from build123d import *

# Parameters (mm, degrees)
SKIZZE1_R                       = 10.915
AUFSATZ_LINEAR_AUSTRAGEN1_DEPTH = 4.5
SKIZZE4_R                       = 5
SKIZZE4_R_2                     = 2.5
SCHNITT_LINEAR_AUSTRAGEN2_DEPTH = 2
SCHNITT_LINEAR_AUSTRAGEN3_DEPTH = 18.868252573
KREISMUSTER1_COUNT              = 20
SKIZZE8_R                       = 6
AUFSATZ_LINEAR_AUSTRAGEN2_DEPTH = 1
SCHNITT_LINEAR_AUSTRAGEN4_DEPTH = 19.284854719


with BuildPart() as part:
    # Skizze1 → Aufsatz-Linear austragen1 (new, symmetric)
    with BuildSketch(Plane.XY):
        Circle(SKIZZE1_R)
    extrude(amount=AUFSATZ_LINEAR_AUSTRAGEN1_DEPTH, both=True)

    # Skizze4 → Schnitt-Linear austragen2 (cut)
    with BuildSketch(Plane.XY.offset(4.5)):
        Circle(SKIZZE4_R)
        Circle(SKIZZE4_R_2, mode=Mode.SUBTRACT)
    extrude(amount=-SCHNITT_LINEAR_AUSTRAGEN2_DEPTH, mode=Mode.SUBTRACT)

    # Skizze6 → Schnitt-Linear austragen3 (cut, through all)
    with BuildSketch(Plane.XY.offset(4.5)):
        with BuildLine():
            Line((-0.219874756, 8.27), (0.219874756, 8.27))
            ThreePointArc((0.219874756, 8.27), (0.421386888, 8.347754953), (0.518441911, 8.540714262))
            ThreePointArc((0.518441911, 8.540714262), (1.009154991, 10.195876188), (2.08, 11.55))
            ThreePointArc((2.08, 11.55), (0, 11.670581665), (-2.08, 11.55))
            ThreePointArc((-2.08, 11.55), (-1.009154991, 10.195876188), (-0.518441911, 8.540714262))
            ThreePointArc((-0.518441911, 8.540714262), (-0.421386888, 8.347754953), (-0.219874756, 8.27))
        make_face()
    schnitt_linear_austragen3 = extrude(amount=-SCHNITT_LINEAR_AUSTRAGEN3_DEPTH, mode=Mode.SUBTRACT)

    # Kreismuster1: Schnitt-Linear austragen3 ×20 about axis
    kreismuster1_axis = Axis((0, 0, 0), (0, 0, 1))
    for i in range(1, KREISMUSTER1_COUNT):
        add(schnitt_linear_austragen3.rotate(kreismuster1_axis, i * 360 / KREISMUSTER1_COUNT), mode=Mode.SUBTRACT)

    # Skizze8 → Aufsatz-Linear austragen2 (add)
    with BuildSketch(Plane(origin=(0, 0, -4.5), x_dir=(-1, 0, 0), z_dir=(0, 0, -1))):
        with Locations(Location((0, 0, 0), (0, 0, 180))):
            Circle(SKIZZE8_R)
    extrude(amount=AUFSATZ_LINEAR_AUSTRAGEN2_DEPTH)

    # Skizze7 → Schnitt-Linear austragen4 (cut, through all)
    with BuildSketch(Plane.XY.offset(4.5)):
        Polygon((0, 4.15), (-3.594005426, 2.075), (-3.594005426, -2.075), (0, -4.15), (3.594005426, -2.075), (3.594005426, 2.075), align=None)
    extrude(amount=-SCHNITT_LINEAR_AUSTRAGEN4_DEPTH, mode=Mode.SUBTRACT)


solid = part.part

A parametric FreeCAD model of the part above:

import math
import FreeCAD as App
import Part
import Sketcher

V = App.Vector
Q = App.Units.Quantity

doc = App.newDocument("Part")
params = doc.addObject("Spreadsheet::Sheet", "Params")
for row, (alias, value) in enumerate([
    ("sketch1_diameter", "21.83 mm"),
    ("pad1_length", "9 mm"),
    ("sketch2_diameter", "10 mm"),
    ("sketch2_diameter2", "5 mm"),
    ("pocket1_length", "2 mm"),
    ("sketch3_radius", "18 mm"),
    ("sketch3_radius2", "0.3 mm"),
    ("sketch3_radius3", "4.56 mm"),
    ("sketch4_diameter", "12 mm"),
    ("pad2_length", "1 mm"),
    ("sketch5_height", "4.15 mm"),
], start=1):
    params.set(f"A{row}", alias)
    params.set(f"B{row}", "=" + value)
    params.setAlias(f"B{row}", alias)

body = doc.addObject("PartDesign::Body", "Body")

sketch1 = body.newObject("Sketcher::SketchObject", "Sketch")
sketch1.AttachmentSupport = (doc.getObject("XY_Plane"), [""])
sketch1.MapMode = "FlatFace"
sketch1.addGeometry(Part.Circle(V(0, 0, 0), V(0, 0, 1), 11), False)
sketch1.addConstraint([
    Sketcher.Constraint("Coincident", 0, 3, -1, 1),
    Sketcher.Constraint("Diameter", 0, Q("21.83 mm")),
])
sketch1.setExpression("Constraints[1]", "Params.sketch1_diameter")
pad1 = body.newObject("PartDesign::Pad", "Pad")
pad1.Profile = sketch1
pad1.setExpression("Length", "Params.pad1_length")
pad1.Midplane = True

sketch2 = body.newObject("Sketcher::SketchObject", "Sketch001")
sketch2.AttachmentSupport = (doc.getObject("XY_Plane"), [""])
sketch2.MapMode = "FlatFace"
sketch2.AttachmentOffset = App.Placement(V(0, 0, 4.5), App.Rotation())
sketch2.addGeometry([
    Part.Circle(V(0, 0, 0), V(0, 0, 1), 5),
    Part.Circle(V(0, 0, 0), V(0, 0, 1), 2.5),
], False)
sketch2.addConstraint([
    Sketcher.Constraint("Coincident", 0, 3, -1, 1),
    Sketcher.Constraint("Coincident", 1, 3, -1, 1),
    Sketcher.Constraint("Diameter", 0, Q("10 mm")),
    Sketcher.Constraint("Diameter", 1, Q("5 mm")),
])
sketch2.setExpression("Constraints[2]", "Params.sketch2_diameter")
sketch2.setExpression("Constraints[3]", "Params.sketch2_diameter2")
pocket1 = body.newObject("PartDesign::Pocket", "Pocket")
pocket1.Profile = sketch2
pocket1.setExpression("Length", "Params.pocket1_length")

sketch3 = body.newObject("Sketcher::SketchObject", "Sketch002")
sketch3.AttachmentSupport = (doc.getObject("XY_Plane"), [""])
sketch3.MapMode = "FlatFace"
sketch3.AttachmentOffset = App.Placement(V(0, 0, 4.5), App.Rotation())
sketch3.addGeometry([
    Part.LineSegment(V(-0.22, 8.27, 0), V(0.22, 8.27, 0)),
    Part.ArcOfCircle(Part.Circle(V(0.22, 8.57, 0), V(0, 0, 1), 0.3), math.radians(-90), math.radians(-6)),
    Part.ArcOfCircle(Part.Circle(V(5.06, 8.1, 0), V(0, 0, 1), 4.56), math.radians(131), math.radians(174)),
    Part.ArcOfCircle(Part.Circle(V(0, -6.33, 0), V(0, 0, 1), 18), math.radians(83.36), math.radians(96.64)),
    Part.ArcOfCircle(Part.Circle(V(-5.06, 8.1, 0), V(0, 0, 1), 4.56), math.radians(6), math.radians(49)),
    Part.ArcOfCircle(Part.Circle(V(-0.22, 8.57, 0), V(0, 0, 1), 0.3), math.radians(-174), math.radians(-90)),
], False)
sketch3.addConstraint([
    Sketcher.Constraint("Tangent", 0, 2, 1, 1),
    Sketcher.Constraint("Tangent", 1, 2, 2, 2),
    Sketcher.Constraint("Coincident", 2, 1, 3, 1),
    Sketcher.Constraint("Coincident", 3, 2, 4, 2),
    Sketcher.Constraint("Tangent", 4, 1, 5, 1),
    Sketcher.Constraint("Tangent", 5, 2, 0, 1),
    Sketcher.Constraint("Horizontal", 0),
    Sketcher.Constraint("Equal", 2, 4),
    Sketcher.Constraint("Equal", 1, 5),
    Sketcher.Constraint("Symmetric", 2, 3, 4, 3, -2),
    Sketcher.Constraint("PointOnObject", 3, 3, -2),
    Sketcher.Constraint("Radius", 3, Q("18 mm")),
    Sketcher.Constraint("Radius", 1, Q("0.3 mm")),
    Sketcher.Constraint("Radius", 2, Q("4.56 mm")),
    Sketcher.Constraint("DistanceY", -1, 1, 1, 3, Q("8.57 mm")),
    Sketcher.Constraint("DistanceX", -1, 1, 2, 1, Q("2.08 mm")),
    Sketcher.Constraint("DistanceY", -1, 1, 2, 1, Q("11.55 mm")),
    Sketcher.Constraint("DistanceX", 0, 1, 0, 2, Q("0.43975 mm")),
])
sketch3.setExpression("Constraints[11]", "Params.sketch3_radius")
sketch3.setExpression("Constraints[12]", "Params.sketch3_radius2")
sketch3.setExpression("Constraints[13]", "Params.sketch3_radius3")
pocket2 = body.newObject("PartDesign::Pocket", "Pocket001")
pocket2.Profile = sketch3
pocket2.Type = "ThroughAll"
doc.recompute()

polarpattern = body.newObject("PartDesign::PolarPattern", "PolarPattern")
polarpattern.Originals = [pocket2]
polarpattern.Axis = (doc.getObject("Z_Axis"), [""])
polarpattern.Angle = 360
polarpattern.Occurrences = 20
body.Tip = polarpattern

sketch4 = body.newObject("Sketcher::SketchObject", "Sketch003")
sketch4.AttachmentSupport = (doc.getObject("XY_Plane"), [""])
sketch4.MapMode = "FlatFace"
sketch4.AttachmentOffset = App.Placement(V(0, 0, -4.5), App.Rotation())
sketch4.addGeometry(Part.Circle(V(0, 0, 0), V(0, 0, 1), 6), False)
sketch4.addConstraint([
    Sketcher.Constraint("Coincident", 0, 3, -1, 1),
    Sketcher.Constraint("Diameter", 0, Q("12 mm")),
])
sketch4.setExpression("Constraints[1]", "Params.sketch4_diameter")
pad2 = body.newObject("PartDesign::Pad", "Pad001")
pad2.Profile = sketch4
pad2.setExpression("Length", "Params.pad2_length")
pad2.Reversed = True

sketch5 = body.newObject("Sketcher::SketchObject", "Sketch004")
sketch5.AttachmentSupport = (doc.getObject("XY_Plane"), [""])
sketch5.MapMode = "FlatFace"
sketch5.AttachmentOffset = App.Placement(V(0, 0, 4.5), App.Rotation())
sketch5.addGeometry([
    Part.LineSegment(V(0, 4.2, 0), V(-3.6, 2.1, 0)),
    Part.LineSegment(V(-3.6, 2.1, 0), V(-3.6, -2.1, 0)),
    Part.LineSegment(V(-3.6, -2.1, 0), V(0, -4.2, 0)),
    Part.LineSegment(V(0, -4.2, 0), V(3.6, -2.1, 0)),
    Part.LineSegment(V(3.6, -2.1, 0), V(3.6, 2.1, 0)),
    Part.LineSegment(V(3.6, 2.1, 0), V(0, 4.2, 0)),
], False)
sketch5.addConstraint([
    Sketcher.Constraint("Coincident", 0, 2, 1, 1),
    Sketcher.Constraint("Coincident", 1, 2, 2, 1),
    Sketcher.Constraint("Coincident", 2, 2, 3, 1),
    Sketcher.Constraint("Coincident", 3, 2, 4, 1),
    Sketcher.Constraint("Coincident", 4, 2, 5, 1),
    Sketcher.Constraint("Coincident", 5, 2, 0, 1),
    Sketcher.Constraint("Vertical", 1),
    Sketcher.Constraint("Vertical", 4),
    Sketcher.Constraint("Symmetric", 0, 2, 3, 2, -1, 1),
    Sketcher.Constraint("Symmetric", 2, 2, 5, 2, -1, 1),
    Sketcher.Constraint("PointOnObject", 2, 2, -2),
    Sketcher.Constraint("Parallel", 2, 5),
    Sketcher.Constraint("Horizontal", 1, 2, 3, 2),
    Sketcher.Constraint("Angle", 0, Q("-150 deg")),
    Sketcher.Constraint("DistanceY", 1, 2, 1, 1, Q("4.15 mm")),
    Sketcher.Constraint("DistanceY", 2, 2, 5, 2, Q("8.3 mm")),
])
sketch5.setExpression("Constraints[14]", "Params.sketch5_height")
pocket3 = body.newObject("PartDesign::Pocket", "Pocket002")
pocket3.Profile = sketch5
pocket3.Type = "ThroughAll"

doc.recompute()
